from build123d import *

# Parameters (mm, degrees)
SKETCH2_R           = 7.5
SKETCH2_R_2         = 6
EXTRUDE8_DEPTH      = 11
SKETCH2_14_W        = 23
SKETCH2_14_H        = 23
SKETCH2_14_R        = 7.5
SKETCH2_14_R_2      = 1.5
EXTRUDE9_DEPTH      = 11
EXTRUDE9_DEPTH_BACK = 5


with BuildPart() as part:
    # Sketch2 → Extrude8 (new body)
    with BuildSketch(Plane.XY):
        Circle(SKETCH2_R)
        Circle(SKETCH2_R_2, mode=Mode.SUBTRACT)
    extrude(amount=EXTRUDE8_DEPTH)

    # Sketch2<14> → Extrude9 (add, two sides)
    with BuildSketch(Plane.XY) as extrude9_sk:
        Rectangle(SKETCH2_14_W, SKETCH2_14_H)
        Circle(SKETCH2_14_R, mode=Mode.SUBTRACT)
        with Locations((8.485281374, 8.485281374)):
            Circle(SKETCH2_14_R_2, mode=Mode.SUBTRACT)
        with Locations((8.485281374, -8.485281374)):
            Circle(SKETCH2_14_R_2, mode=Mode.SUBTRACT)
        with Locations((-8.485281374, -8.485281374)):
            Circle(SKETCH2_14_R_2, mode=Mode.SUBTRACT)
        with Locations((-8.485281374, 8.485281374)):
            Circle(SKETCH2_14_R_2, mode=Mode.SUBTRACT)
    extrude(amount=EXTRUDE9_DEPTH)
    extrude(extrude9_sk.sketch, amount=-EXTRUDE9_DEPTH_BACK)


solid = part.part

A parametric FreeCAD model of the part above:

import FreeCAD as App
import Part
import Sketcher

V = App.Vector


def add_polygon(sketch, points):
    """Adds a closed chain of lines whose ends are joined by coincident constraints."""
    first, n = sketch.GeometryCount, len(points)
    for a, b in zip(points, points[1:] + points[:1]):
        sketch.addGeometry(Part.LineSegment(App.Vector(*a, 0), App.Vector(*b, 0)), False)
    for i in range(n):
        sketch.addConstraint(Sketcher.Constraint("Coincident", first + i, 2, first + (i + 1) % n, 1))

doc = App.newDocument("Part")
params = doc.addObject("Spreadsheet::Sheet", "Params")
for row, (alias, value) in enumerate([
    ("sketch1_diameter", "15 mm"),
    ("sketch1_diameter2", "12 mm"),
    ("pad1_length", "11 mm"),
    ("sketch2_diameter", "3 mm"),
    ("sketch2_diameter2", "15 mm"),
    ("sketch2_width", "23 mm"),
    ("pad2_length", "11 mm"),
    ("pad2_length2", "5 mm"),
], start=1):
    params.set(f"A{row}", alias)
    params.set(f"B{row}", "=" + value)
    params.setAlias(f"B{row}", alias)

body = doc.addObject("PartDesign::Body", "Body")

sketch1 = doc.addObject("Sketcher::SketchObject", "Sketch")
body.addObject(sketch1)
sketch1.AttachmentSupport = (doc.XY_Plane, [""])
sketch1.MapMode = "FlatFace"
sketch1.addGeometry(Part.Circle(V(0, 0, 0), V(0, 0, 1), 7.5), False)
sketch1.addGeometry(Part.Circle(V(0, 0, 0), V(0, 0, 1), 6), False)
sketch1.addConstraint(Sketcher.Constraint("Coincident", 0, 3, -1, 1))
sketch1.addConstraint(Sketcher.Constraint("Coincident", 1, 3, -1, 1))
sketch1.addConstraint(Sketcher.Constraint("Diameter", 0, 15.0))
sketch1.addConstraint(Sketcher.Constraint("Diameter", 1, 12.0))
sketch1.setExpression("Constraints[2]", "Params.sketch1_diameter")
sketch1.setExpression("Constraints[3]", "Params.sketch1_diameter2")
pad1 = doc.addObject("PartDesign::Pad", "Pad")
body.addObject(pad1)
pad1.Profile = sketch1
pad1.setExpression("Length", "Params.pad1_length")

sketch2 = doc.addObject("Sketcher::SketchObject", "Sketch001")
body.addObject(sketch2)
sketch2.AttachmentSupport = (doc.XY_Plane, [""])
sketch2.MapMode = "FlatFace"
add_polygon(sketch2, [(-11.5, 11.5), (-11.5, -11.5), (11.5, -11.5), (11.5, 11.5)])
sketch2.addGeometry(Part.Circle(V(-8.485281, -8.485281, 0), V(0, 0, 1), 1.5), False)
sketch2.addGeometry(Part.Circle(V(8.485281, -8.485281, 0), V(0, 0, 1), 1.5), False)
sketch2.addGeometry(Part.Circle(V(-8.485281, 8.485281, 0), V(0, 0, 1), 1.5), False)
sketch2.addGeometry(Part.Circle(V(0, 0, 0), V(0, 0, 1), 7.5), False)
sketch2.addGeometry(Part.Circle(V(8.485281, 8.485281, 0), V(0, 0, 1), 1.5), False)
sketch2.addConstraint(Sketcher.Constraint("Vertical", 0))
sketch2.addConstraint(Sketcher.Constraint("Horizontal", 1))
sketch2.addConstraint(Sketcher.Constraint("Vertical", 2))
sketch2.addConstraint(Sketcher.Constraint("Horizontal", 3))
sketch2.addConstraint(Sketcher.Constraint("Coincident", 7, 3, -1, 1))
sketch2.addConstraint(Sketcher.Constraint("Equal", 4, 5))
sketch2.addConstraint(Sketcher.Constraint("Equal", 5, 6))
sketch2.addConstraint(Sketcher.Constraint("Equal", 6, 8))
sketch2.addConstraint(Sketcher.Constraint("Symmetric", 5, 3, 6, 3, -1, 1))
sketch2.addConstraint(Sketcher.Constraint("Symmetric", 4, 3, 8, 3, -1, 1))
sketch2.addConstraint(Sketcher.Constraint("Symmetric", 0, 2, 2, 2, -1, 1))
sketch2.addConstraint(Sketcher.Constraint("Symmetric", 4, 3, 5, 3, -2))
sketch2.addConstraint(Sketcher.Constraint("Equal", 3, 0))
sketch2.addConstraint(Sketcher.Constraint("Diameter", 4, 3.0))
sketch2.addConstraint(Sketcher.Constraint("Diameter", 7, 15.0))
sketch2.addConstraint(Sketcher.Constraint("DistanceX", 1, 1, 1, 2, 23.0))
sketch2.addConstraint(Sketcher.Constraint("DistanceX", 4, 3, -1, 1, 8.485281))
sketch2.addConstraint(Sketcher.Constraint("DistanceY", 4, 3, -1, 1, 8.485281))
sketch2.setExpression("Constraints[17]", "Params.sketch2_diameter")
sketch2.setExpression("Constraints[18]", "Params.sketch2_diameter2")
sketch2.setExpression("Constraints[19]", "Params.sketch2_width")
pad2 = doc.addObject("PartDesign::Pad", "Pad001")
body.addObject(pad2)
pad2.Profile = sketch2
pad2.Type = "TwoLengths"
pad2.setExpression("Length", "Params.pad2_length")
pad2.setExpression("Length2", "Params.pad2_length2")

doc.recompute()
